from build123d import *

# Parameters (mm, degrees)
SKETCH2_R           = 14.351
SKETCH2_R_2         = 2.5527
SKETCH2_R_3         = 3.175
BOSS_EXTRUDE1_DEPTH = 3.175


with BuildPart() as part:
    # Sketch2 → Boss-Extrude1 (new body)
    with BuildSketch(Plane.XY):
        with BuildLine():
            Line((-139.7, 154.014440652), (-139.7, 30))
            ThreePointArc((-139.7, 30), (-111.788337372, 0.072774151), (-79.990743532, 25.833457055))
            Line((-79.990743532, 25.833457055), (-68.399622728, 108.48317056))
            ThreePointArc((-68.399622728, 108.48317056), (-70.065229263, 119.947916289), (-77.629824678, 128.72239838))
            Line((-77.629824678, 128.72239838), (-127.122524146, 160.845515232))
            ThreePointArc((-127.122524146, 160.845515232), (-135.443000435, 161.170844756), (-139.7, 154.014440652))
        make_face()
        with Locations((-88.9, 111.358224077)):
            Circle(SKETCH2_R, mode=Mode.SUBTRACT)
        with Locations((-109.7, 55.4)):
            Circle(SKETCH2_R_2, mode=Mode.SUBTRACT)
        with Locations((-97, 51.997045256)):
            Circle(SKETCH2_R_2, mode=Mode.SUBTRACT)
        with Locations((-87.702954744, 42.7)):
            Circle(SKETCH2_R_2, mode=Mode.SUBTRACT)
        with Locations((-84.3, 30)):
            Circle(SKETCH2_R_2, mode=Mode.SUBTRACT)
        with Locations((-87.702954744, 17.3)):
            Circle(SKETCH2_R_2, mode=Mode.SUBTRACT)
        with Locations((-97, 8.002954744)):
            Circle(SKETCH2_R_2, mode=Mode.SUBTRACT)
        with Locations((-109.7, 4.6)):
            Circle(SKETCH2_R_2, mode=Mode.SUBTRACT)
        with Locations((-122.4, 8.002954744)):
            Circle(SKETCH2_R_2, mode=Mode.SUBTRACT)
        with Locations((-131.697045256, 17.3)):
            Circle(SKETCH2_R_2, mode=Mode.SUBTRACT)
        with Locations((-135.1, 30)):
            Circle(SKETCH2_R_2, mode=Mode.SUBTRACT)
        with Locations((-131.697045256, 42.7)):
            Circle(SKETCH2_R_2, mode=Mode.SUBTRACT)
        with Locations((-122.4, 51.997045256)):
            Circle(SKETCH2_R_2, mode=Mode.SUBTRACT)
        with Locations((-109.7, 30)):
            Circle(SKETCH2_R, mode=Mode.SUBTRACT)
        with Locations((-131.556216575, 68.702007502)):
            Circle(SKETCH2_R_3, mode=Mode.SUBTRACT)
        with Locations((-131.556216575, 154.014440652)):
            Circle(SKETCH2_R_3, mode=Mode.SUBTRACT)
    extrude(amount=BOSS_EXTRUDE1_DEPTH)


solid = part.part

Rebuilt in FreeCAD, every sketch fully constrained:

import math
import FreeCAD as App
import Part
import Sketcher

V = App.Vector
Q = App.Units.Quantity

doc = App.newDocument("Part")
params = doc.addObject("Spreadsheet::Sheet", "Params")
for row, (alias, value) in enumerate([
    ("sketch1_diameter", "1.13 in"),
    ("sketch1_diameter2", "0.25 in"),
    ("sketch1_diameter3", "0.201 in"),
    ("sketch1_radius", "0.815 in"),
    ("pad1_length", "0.125 in"),
], start=1):
    params.set(f"A{row}", alias)
    params.set(f"B{row}", "=" + value)
    params.setAlias(f"B{row}", alias)

body = doc.addObject("PartDesign::Body", "Body")

# Sketch on XY plane
sketch1 = body.newObject("Sketcher::SketchObject", "Sketch")
sketch1.AttachmentSupport = (doc.getObject("XY_Plane"), [""])
sketch1.MapMode = "FlatFace"
sketch1.addGeometry([
    Part.LineSegment(V(-139.7, 154, 0), V(-139.7, 30, 0)),  # 0
    Part.ArcOfCircle(Part.Circle(V(-109.7, 30, 0), V(0, 0, 1), 30), math.radians(180), math.radians(352)),  # 1
    Part.LineSegment(V(-80, 25.8, 0), V(-68.4, 108.5, 0)),  # 2
    Part.ArcOfCircle(Part.Circle(V(-88.9, 111.4, 0), V(0, 0, 1), 20.7), math.radians(-8), math.radians(57)),  # 3
    Part.LineSegment(V(-77.6, 128.7, 0), V(-127.1, 160.8, 0)),  # 4
    Part.ArcOfCircle(Part.Circle(V(-131.6, 154, 0), V(0, 0, 1), 8.1), math.radians(57), math.radians(180)),  # 5
    Part.Circle(V(-131.7, 17.3, 0), V(0, 0, 1), 2.6),  # 6
    Part.Circle(V(-122.4, 8, 0), V(0, 0, 1), 2.6),  # 7
    Part.Circle(V(-135.1, 30, 0), V(0, 0, 1), 2.6),  # 8
    Part.Circle(V(-109.7, 4.6, 0), V(0, 0, 1), 2.6),  # 9
    Part.Circle(V(-109.7, 30, 0), V(0, 0, 1), 14.4),  # 10
    Part.Circle(V(-131.7, 42.7, 0), V(0, 0, 1), 2.6),  # 11
    Part.Circle(V(-122.4, 52, 0), V(0, 0, 1), 2.6),  # 12
    Part.Circle(V(-131.6, 68.7, 0), V(0, 0, 1), 3.2),  # 13
    Part.Circle(V(-109.7, 55.4, 0), V(0, 0, 1), 2.6),  # 14
    Part.Circle(V(-97, 8, 0), V(0, 0, 1), 2.6),  # 15
    Part.Circle(V(-87.7, 17.3, 0), V(0, 0, 1), 2.6),  # 16
    Part.Circle(V(-84.3, 30, 0), V(0, 0, 1), 2.6),  # 17
    Part.Circle(V(-97, 52, 0), V(0, 0, 1), 2.6),  # 18
    Part.Circle(V(-87.7, 42.7, 0), V(0, 0, 1), 2.6),  # 19
    Part.Circle(V(-131.6, 154, 0), V(0, 0, 1), 3.2),  # 20
    Part.Circle(V(-88.9, 111.4, 0), V(0, 0, 1), 14.4),  # 21
], False)
sketch1.addConstraint([
    Sketcher.Constraint("Tangent", 0, 2, 1, 1),
    Sketcher.Constraint("Tangent", 1, 2, 2, 1),
    Sketcher.Constraint("Tangent", 2, 2, 3, 1),
    Sketcher.Constraint("Tangent", 3, 2, 4, 1),
    Sketcher.Constraint("Tangent", 4, 2, 5, 1),
    Sketcher.Constraint("Tangent", 5, 2, 0, 1),
    Sketcher.Constraint("Vertical", 0),
    Sketcher.Constraint("Coincident", 10, 3, 1, 3),
    Sketcher.Constraint("Coincident", 20, 3, 5, 3),
    Sketcher.Constraint("Coincident", 21, 3, 3, 3),
    Sketcher.Constraint("Equal", 6, 7),
    Sketcher.Constraint("Equal", 7, 8),
    Sketcher.Constraint("Equal", 8, 9),
    Sketcher.Constraint("Equal", 9, 11),
    Sketcher.Constraint("Equal", 11, 12),
    Sketcher.Constraint("Equal", 12, 14),
    Sketcher.Constraint("Equal", 14, 15),
    Sketcher.Constraint("Equal", 15, 16),
    Sketcher.Constraint("Equal", 16, 17),
    Sketcher.Constraint("Equal", 17, 18),
    Sketcher.Constraint("Equal", 18, 19),
    Sketcher.Constraint("Equal", 13, 20),
    Sketcher.Constraint("Equal", 10, 21),
    Sketcher.Constraint("Horizontal", 1, 3, 8, 3),
    Sketcher.Constraint("Horizontal", 7, 3, 15, 3),
    Sketcher.Constraint("Horizontal", 6, 3, 16, 3),
    Sketcher.Constraint("Horizontal", 10, 3, 17, 3),
    Sketcher.Constraint("Horizontal", 12, 3, 18, 3),
    Sketcher.Constraint("Horizontal", 11, 3, 19, 3),
    Sketcher.Constraint("Vertical", 1, 3, 9, 3),
    Sketcher.Constraint("Vertical", 6, 3, 11, 3),
    Sketcher.Constraint("Vertical", 7, 3, 12, 3),
    Sketcher.Constraint("Vertical", 5, 3, 13, 3),
    Sketcher.Constraint("Vertical", 10, 3, 14, 3),
    Sketcher.Constraint("Vertical", 15, 3, 18, 3),
    Sketcher.Constraint("Vertical", 16, 3, 19, 3),
    Sketcher.Constraint("Diameter", 10, Q("1.13 in")),
    Sketcher.Constraint("Diameter", 13, Q("0.25 in")),
    Sketcher.Constraint("Diameter", 6, Q("0.201 in")),
    Sketcher.Constraint("Radius", 3, Q("0.815 in")),
    Sketcher.Constraint("DistanceX", 8, 3, 1, 3, Q("1 in")),
    Sketcher.Constraint("DistanceY", 9, 3, 1, 3, Q("1 in")),
    Sketcher.Constraint("DistanceY", 6, 3, 11, 3, Q("1 in")),
    Sketcher.Constraint("DistanceY", 1, 3, 14, 3, Q("1 in")),
    Sketcher.Constraint("DistanceX", 7, 3, 15, 3, Q("1 in")),
    Sketcher.Constraint("DistanceX", 1, 3, 17, 3, Q("1 in")),
    Sketcher.Constraint("DistanceX", 5, 2, 3, 3, Q("2 in")),
    Sketcher.Constraint("DistanceX", 3, 3, -1, 1, Q("3.5 in")),
    Sketcher.Constraint("DistanceY", 6, 3, 1, 3, Q("0.5 in")),
    Sketcher.Constraint("DistanceX", 7, 3, 1, 3, Q("0.5 in")),
    Sketcher.Constraint("Radius", 1, Q("30 mm")),
    Sketcher.Constraint("Radius", 5, Q("8.143783 mm")),
    Sketcher.Constraint("DistanceY", 0, 2, 0, 1, Q("124.014441 mm")),
    Sketcher.Constraint("DistanceY", -1, 1, 1, 3, Q("30 mm")),
    Sketcher.Constraint("DistanceY", -1, 1, 3, 2, Q("128.722398 mm")),
    Sketcher.Constraint("DistanceX", 6, 3, 5, 3, Q("0.140829 mm")),
    Sketcher.Constraint("DistanceY", 7, 3, 3, 3, Q("103.355269 mm")),
    Sketcher.Constraint("DistanceY", 18, 3, 21, 3, Q("59.361179 mm")),
    Sketcher.Constraint("DistanceX", 16, 3, 1, 2, Q("7.712211 mm")),
    Sketcher.Constraint("DistanceY", -1, 1, 13, 3, Q("68.702008 mm")),
])
sketch1.setExpression("Constraints[36]", "Params.sketch1_diameter")
sketch1.setExpression("Constraints[37]", "Params.sketch1_diameter2")
sketch1.setExpression("Constraints[38]", "Params.sketch1_diameter3")
sketch1.setExpression("Constraints[39]", "Params.sketch1_radius")
pad1 = body.newObject("PartDesign::Pad", "Pad")
pad1.Profile = sketch1
pad1.setExpression("Length", "Params.pad1_length")

doc.recompute()
